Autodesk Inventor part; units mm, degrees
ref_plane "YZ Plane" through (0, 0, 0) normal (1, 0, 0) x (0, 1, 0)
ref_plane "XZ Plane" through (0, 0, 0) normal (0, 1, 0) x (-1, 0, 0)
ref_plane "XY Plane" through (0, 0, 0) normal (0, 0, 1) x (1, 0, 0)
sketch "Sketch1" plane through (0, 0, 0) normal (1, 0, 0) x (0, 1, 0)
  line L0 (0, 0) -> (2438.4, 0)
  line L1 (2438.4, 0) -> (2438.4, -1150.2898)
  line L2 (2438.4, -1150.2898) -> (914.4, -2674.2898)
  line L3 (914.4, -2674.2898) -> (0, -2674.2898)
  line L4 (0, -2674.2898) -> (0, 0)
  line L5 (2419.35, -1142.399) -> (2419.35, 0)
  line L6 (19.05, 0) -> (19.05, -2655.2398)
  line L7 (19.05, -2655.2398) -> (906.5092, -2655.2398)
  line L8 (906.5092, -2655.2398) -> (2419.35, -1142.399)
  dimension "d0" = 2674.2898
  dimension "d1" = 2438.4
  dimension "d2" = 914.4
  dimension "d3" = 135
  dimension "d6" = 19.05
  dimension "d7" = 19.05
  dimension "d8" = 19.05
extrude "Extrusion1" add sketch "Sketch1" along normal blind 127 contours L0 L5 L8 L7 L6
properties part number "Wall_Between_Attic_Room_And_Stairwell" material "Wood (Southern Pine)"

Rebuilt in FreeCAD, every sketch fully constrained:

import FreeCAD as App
import Part
import Sketcher
from FreeCAD import Vector
Q = App.Units.Quantity


def add_polygon(sketch, points):
    """Adds a closed chain of lines whose ends are joined by coincident constraints."""
    first, n = sketch.GeometryCount, len(points)
    for a, b in zip(points, points[1:] + points[:1]):
        sketch.addGeometry(Part.LineSegment(App.Vector(*a, 0), App.Vector(*b, 0)), False)
    for i in range(n):
        sketch.addConstraint(Sketcher.Constraint("Coincident", first + i, 2, first + (i + 1) % n, 1))

doc = App.newDocument("Part")
params = doc.addObject("Spreadsheet::Sheet", "Params")
for row, (alias, value) in enumerate([
    ("sketch1_width", "94.5 in"),
    ("sketch1_height", "104.537 in"),
    ("pad1_length", "5 in"),
], start=1):
    params.set(f"A{row}", alias)
    params.set(f"B{row}", "=" + value)
    params.setAlias(f"B{row}", alias)

body = doc.addObject("PartDesign::Body", "Body")

# Sketch on YZ plane
sketch1 = body.newObject("Sketcher::SketchObject", "Sketch")
sketch1.AttachmentSupport = (doc.getObject("YZ_Plane"), [""])
sketch1.MapMode = "FlatFace"
add_polygon(sketch1, [(2419, 0), (19, 0), (19, -2655), (907, -2655), (2419, -1142)])  # lines 0-4
sketch1.addConstraint(Sketcher.Constraint("Horizontal", 0))
sketch1.addConstraint(Sketcher.Constraint("Vertical", 1))
sketch1.addConstraint(Sketcher.Constraint("Horizontal", 2))
sketch1.addConstraint(Sketcher.Constraint("Vertical", 4))
sketch1.addConstraint(Sketcher.Constraint("PointOnObject", 0, 2, -1))
sketch1.addConstraint(Sketcher.Constraint("DistanceX", -1, 1, 0, 2, Q("0.75 in")))
sketch1.addConstraint(Sketcher.Constraint("DistanceX", 0, 2, 0, 1, Q("94.5 in")))
sketch1.addConstraint(Sketcher.Constraint("Angle", 3, Q("45 deg")))
sketch1.addConstraint(Sketcher.Constraint("DistanceY", 1, 2, 1, 1, Q("104.537 in")))
sketch1.addConstraint(Sketcher.Constraint("Distance", 3, Q("84.2315 in")))
sketch1.setExpression("Constraints[11]", "Params.sketch1_width")
sketch1.setExpression("Constraints[13]", "Params.sketch1_height")
pad1 = body.newObject("PartDesign::Pad", "Pad")
pad1.Profile = sketch1
pad1.setExpression("Length", "Params.pad1_length")

doc.recompute()
